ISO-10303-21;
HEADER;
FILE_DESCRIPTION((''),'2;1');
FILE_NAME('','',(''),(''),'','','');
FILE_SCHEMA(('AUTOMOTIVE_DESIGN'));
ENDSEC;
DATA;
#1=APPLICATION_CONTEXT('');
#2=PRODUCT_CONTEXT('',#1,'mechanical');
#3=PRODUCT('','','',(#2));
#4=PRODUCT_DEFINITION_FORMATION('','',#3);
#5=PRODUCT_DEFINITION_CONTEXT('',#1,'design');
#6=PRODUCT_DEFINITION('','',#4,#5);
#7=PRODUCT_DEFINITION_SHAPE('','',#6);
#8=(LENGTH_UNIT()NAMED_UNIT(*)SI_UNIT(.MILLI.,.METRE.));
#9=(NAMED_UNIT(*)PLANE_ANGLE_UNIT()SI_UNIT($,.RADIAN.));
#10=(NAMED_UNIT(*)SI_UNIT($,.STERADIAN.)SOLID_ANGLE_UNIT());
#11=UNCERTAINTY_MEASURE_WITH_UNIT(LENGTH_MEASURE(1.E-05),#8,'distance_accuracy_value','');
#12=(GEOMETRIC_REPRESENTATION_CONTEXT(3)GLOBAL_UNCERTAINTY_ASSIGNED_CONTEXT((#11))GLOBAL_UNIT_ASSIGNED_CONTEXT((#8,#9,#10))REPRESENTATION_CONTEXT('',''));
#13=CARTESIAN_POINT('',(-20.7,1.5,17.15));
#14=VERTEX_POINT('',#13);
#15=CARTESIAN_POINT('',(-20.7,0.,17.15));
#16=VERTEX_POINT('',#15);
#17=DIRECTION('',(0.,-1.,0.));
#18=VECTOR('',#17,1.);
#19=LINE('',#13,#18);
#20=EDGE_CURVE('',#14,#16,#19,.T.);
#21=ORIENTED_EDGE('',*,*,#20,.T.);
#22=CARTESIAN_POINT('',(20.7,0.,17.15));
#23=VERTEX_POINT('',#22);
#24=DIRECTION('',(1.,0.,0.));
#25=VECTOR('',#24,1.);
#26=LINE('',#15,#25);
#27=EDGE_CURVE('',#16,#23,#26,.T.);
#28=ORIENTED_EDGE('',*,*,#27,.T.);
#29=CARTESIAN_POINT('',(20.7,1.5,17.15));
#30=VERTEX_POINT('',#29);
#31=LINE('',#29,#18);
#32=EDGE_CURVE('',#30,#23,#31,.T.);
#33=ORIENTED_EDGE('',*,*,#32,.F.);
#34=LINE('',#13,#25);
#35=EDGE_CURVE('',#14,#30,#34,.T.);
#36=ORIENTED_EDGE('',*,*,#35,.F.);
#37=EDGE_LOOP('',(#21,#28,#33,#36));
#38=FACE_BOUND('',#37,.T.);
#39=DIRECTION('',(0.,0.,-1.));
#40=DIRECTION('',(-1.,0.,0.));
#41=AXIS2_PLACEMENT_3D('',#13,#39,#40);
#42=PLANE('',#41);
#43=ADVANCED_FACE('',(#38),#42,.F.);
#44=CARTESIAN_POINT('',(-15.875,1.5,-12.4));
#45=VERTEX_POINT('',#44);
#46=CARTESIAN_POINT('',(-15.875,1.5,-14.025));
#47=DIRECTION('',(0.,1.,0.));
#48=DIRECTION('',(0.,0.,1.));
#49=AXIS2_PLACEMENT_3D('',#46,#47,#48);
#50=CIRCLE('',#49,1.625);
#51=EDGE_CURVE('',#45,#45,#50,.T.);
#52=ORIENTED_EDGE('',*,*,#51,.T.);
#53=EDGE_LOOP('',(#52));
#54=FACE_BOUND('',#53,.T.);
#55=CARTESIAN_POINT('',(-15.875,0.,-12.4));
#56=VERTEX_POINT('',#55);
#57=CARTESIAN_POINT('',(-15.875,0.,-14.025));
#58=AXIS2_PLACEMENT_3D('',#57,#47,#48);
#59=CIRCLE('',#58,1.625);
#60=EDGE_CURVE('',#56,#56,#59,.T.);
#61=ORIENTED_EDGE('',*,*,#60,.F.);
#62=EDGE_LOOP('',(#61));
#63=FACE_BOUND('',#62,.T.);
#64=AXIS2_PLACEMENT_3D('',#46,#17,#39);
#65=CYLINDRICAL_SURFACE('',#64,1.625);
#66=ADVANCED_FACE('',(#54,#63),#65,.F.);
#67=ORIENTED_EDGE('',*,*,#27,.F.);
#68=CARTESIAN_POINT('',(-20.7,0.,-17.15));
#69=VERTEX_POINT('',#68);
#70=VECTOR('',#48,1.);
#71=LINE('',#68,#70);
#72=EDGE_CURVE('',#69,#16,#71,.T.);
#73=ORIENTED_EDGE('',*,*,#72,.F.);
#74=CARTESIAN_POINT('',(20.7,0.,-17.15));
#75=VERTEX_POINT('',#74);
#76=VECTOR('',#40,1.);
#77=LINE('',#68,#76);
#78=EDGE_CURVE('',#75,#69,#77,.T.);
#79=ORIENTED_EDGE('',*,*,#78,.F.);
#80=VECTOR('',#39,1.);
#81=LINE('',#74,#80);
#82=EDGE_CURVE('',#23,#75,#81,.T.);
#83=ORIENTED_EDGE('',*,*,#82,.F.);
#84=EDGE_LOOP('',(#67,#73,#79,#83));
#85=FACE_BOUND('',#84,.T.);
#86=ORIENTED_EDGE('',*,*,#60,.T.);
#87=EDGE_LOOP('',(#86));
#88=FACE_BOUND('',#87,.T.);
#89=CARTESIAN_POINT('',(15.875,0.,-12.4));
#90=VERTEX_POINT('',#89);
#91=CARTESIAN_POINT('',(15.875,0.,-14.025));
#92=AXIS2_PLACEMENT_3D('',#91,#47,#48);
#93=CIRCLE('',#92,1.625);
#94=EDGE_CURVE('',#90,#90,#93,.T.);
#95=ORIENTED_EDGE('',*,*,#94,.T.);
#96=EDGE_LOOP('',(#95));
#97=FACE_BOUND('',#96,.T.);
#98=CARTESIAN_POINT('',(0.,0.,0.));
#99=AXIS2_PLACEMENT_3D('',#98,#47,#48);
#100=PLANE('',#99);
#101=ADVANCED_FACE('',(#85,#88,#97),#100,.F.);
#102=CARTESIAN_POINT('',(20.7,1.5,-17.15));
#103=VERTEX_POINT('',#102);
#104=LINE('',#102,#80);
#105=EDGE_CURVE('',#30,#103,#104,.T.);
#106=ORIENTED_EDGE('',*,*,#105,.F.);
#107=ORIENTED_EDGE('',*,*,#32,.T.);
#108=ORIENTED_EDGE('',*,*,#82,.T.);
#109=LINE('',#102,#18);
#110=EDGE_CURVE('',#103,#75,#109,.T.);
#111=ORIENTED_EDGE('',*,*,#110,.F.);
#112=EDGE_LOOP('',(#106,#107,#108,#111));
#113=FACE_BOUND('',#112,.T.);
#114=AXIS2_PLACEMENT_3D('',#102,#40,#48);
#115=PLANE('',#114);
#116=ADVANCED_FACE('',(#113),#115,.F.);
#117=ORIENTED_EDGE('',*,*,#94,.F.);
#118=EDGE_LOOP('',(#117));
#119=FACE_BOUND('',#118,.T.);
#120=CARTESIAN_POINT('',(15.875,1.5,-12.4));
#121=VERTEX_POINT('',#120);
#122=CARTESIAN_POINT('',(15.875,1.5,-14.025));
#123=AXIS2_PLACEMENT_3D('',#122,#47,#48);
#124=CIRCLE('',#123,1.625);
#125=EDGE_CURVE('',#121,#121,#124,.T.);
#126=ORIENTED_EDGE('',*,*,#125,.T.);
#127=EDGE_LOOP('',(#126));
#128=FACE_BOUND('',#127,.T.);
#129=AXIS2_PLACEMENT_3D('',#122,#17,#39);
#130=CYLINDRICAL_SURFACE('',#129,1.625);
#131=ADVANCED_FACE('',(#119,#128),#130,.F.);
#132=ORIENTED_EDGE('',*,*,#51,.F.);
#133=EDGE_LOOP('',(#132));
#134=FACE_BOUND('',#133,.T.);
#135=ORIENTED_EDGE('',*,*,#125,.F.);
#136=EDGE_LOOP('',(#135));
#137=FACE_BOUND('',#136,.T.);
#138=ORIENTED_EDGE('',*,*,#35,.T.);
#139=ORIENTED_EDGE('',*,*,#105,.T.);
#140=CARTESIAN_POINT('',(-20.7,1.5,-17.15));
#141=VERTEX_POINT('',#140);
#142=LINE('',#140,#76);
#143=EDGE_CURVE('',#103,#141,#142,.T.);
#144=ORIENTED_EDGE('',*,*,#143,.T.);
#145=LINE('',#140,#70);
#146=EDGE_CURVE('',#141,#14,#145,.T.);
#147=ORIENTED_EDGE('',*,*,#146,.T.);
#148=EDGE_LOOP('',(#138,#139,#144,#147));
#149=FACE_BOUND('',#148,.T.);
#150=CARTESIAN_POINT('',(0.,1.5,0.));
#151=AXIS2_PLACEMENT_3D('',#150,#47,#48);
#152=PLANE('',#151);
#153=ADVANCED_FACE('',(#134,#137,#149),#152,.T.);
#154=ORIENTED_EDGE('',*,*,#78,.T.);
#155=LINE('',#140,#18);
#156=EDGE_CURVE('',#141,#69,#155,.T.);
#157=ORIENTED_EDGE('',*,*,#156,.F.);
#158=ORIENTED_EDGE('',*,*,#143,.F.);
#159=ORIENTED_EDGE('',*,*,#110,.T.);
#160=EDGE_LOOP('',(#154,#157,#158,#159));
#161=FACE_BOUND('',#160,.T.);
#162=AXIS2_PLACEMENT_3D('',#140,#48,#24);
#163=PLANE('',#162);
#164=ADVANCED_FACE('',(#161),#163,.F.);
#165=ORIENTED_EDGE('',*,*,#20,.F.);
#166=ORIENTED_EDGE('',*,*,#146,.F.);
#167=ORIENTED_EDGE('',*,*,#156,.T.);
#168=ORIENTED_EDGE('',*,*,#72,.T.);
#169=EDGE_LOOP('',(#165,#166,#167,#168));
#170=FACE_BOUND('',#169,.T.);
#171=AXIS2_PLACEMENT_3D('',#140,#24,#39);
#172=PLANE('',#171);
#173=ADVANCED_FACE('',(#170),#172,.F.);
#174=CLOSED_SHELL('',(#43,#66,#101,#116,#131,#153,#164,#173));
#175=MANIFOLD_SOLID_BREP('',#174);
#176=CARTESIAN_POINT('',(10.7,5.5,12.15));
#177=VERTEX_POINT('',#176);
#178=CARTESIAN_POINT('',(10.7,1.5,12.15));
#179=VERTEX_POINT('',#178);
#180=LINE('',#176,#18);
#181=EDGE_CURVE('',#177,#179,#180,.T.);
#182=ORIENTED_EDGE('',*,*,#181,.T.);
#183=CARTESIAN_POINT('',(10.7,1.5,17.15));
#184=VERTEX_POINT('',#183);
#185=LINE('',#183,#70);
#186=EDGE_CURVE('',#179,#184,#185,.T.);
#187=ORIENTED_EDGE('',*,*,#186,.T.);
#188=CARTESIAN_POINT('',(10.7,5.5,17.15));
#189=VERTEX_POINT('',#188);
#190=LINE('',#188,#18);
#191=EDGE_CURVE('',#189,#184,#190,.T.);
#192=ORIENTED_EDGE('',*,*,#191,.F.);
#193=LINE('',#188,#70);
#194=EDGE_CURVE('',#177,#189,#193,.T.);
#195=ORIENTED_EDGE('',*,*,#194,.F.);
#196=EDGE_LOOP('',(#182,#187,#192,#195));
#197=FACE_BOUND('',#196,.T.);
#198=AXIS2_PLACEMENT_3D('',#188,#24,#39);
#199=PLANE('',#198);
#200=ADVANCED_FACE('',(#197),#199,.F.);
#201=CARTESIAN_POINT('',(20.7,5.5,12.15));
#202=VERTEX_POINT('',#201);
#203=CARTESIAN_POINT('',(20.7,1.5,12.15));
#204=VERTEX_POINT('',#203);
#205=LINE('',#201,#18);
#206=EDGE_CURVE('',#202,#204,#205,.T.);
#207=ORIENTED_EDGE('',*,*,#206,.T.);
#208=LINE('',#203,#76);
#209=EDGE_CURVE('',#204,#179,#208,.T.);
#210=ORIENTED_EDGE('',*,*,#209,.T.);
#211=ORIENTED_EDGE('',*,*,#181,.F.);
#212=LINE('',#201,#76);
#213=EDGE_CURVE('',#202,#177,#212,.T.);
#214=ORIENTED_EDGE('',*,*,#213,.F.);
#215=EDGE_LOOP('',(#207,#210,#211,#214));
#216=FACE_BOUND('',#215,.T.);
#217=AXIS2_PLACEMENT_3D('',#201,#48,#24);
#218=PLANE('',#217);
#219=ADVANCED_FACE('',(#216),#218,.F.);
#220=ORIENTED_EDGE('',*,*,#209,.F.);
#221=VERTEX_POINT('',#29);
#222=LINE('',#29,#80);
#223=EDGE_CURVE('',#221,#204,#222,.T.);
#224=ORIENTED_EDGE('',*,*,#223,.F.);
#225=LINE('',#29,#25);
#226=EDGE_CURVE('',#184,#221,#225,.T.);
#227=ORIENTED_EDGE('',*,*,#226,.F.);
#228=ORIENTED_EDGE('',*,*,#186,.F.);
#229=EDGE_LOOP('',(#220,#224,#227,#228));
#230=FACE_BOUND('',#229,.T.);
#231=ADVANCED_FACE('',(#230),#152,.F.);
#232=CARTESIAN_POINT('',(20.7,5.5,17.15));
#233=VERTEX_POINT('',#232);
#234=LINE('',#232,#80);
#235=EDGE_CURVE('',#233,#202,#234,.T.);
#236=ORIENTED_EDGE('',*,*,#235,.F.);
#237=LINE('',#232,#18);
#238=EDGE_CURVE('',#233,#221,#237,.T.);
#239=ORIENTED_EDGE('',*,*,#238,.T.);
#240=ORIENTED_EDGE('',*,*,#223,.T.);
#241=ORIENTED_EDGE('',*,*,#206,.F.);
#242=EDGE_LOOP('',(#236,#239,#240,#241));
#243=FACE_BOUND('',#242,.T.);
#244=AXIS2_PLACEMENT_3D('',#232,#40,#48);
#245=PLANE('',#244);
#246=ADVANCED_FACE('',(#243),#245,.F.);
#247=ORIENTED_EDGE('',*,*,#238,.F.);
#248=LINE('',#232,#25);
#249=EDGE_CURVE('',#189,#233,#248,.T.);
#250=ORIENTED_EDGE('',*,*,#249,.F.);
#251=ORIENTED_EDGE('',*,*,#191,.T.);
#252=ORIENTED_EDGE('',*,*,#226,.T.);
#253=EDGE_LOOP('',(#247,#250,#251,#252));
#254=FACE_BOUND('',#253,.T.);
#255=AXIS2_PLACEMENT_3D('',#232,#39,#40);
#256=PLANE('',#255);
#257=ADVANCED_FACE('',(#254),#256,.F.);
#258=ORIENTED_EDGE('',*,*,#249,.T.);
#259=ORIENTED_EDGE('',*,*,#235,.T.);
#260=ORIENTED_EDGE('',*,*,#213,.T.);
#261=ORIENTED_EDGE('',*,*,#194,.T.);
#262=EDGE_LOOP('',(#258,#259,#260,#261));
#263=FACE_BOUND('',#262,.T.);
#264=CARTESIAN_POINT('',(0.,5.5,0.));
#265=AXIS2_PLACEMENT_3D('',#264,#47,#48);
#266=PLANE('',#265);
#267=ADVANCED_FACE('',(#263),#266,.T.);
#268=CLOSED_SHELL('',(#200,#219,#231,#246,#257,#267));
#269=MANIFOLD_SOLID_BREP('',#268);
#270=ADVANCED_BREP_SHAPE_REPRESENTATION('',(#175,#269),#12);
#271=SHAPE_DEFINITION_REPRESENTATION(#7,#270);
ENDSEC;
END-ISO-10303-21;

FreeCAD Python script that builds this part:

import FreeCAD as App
import Part
import Sketcher

V = App.Vector


def add_polygon(sketch, points):
    """Adds a closed chain of lines whose ends are joined by coincident constraints."""
    first, n = sketch.GeometryCount, len(points)
    for a, b in zip(points, points[1:] + points[:1]):
        sketch.addGeometry(Part.LineSegment(App.Vector(*a, 0), App.Vector(*b, 0)), False)
    for i in range(n):
        sketch.addConstraint(Sketcher.Constraint("Coincident", first + i, 2, first + (i + 1) % n, 1))

doc = App.newDocument("Part")
params = doc.addObject("Spreadsheet::Sheet", "Params")
for row, (alias, value) in enumerate([
    ("sketch1_diameter", "3.25 mm"),
    ("sketch1_width", "41.4 mm"),
    ("sketch1_height", "34.3 mm"),
    ("pad1_length", "1.5 mm"),
    ("sketch2_width", "10 mm"),
    ("sketch2_height", "5 mm"),
    ("pad2_length", "4 mm"),
], start=1):
    params.set(f"A{row}", alias)
    params.set(f"B{row}", "=" + value)
    params.setAlias(f"B{row}", alias)

body = doc.addObject("PartDesign::Body", "Body")

# Sketch on XZ plane
sketch1 = body.newObject("Sketcher::SketchObject", "Sketch")
sketch1.AttachmentSupport = (doc.getObject("XZ_Plane"), [""])
sketch1.MapMode = "FlatFace"
add_polygon(sketch1, [(-20.7, -17.1), (-20.7, 17.1), (20.7, 17.1), (20.7, -17.1)])  # lines 0-3
sketch1.addGeometry(Part.Circle(V(-15.9, -14, 0), V(0, 0, 1), 1.6), False)  # 4
sketch1.addGeometry(Part.Circle(V(15.9, -14, 0), V(0, 0, 1), 1.6), False)  # 5
sketch1.addConstraint(Sketcher.Constraint("Vertical", 0))
sketch1.addConstraint(Sketcher.Constraint("Horizontal", 1))
sketch1.addConstraint(Sketcher.Constraint("Vertical", 2))
sketch1.addConstraint(Sketcher.Constraint("Horizontal", 3))
sketch1.addConstraint(Sketcher.Constraint("Equal", 4, 5))
sketch1.addConstraint(Sketcher.Constraint("Symmetric", 0, 2, 2, 2, -1, 1))
sketch1.addConstraint(Sketcher.Constraint("Symmetric", 4, 3, 5, 3, -2))
sketch1.addConstraint(Sketcher.Constraint("Diameter", 4, 3.25))
sketch1.addConstraint(Sketcher.Constraint("DistanceX", 1, 1, 1, 2, 41.4))
sketch1.addConstraint(Sketcher.Constraint("DistanceY", 0, 1, 0, 2, 34.3))
sketch1.addConstraint(Sketcher.Constraint("DistanceX", 4, 3, 5, 3, 31.75))
sketch1.addConstraint(Sketcher.Constraint("DistanceY", 4, 3, -1, 1, 14.025))
sketch1.setExpression("Constraints[11]", "Params.sketch1_diameter")
sketch1.setExpression("Constraints[12]", "Params.sketch1_width")
sketch1.setExpression("Constraints[13]", "Params.sketch1_height")
pad1 = body.newObject("PartDesign::Pad", "Pad")
pad1.Profile = sketch1
pad1.setExpression("Length", "Params.pad1_length")
pad1.Reversed = True
body2 = doc.addObject("PartDesign::Body", "Body001")

# Sketch on XZ plane
sketch2 = body2.newObject("Sketcher::SketchObject", "Sketch001")
sketch2.AttachmentSupport = (doc.getObject("XZ_Plane001"), [""])
sketch2.MapMode = "FlatFace"
sketch2.AttachmentOffset = App.Placement(V(0, 0, -1.5), App.Rotation())
add_polygon(sketch2, [(10.7, 12.2), (10.7, 17.1), (20.7, 17.1), (20.7, 12.2)])  # lines 0-3
sketch2.addConstraint(Sketcher.Constraint("Vertical", 0))
sketch2.addConstraint(Sketcher.Constraint("Horizontal", 1))
sketch2.addConstraint(Sketcher.Constraint("Vertical", 2))
sketch2.addConstraint(Sketcher.Constraint("Horizontal", 3))
sketch2.addConstraint(Sketcher.Constraint("DistanceX", 1, 1, 1, 2, 10.0))
sketch2.addConstraint(Sketcher.Constraint("DistanceY", 0, 1, 0, 2, 5.0))
sketch2.addConstraint(Sketcher.Constraint("DistanceX", -1, 1, 0, 2, 10.7))
sketch2.addConstraint(Sketcher.Constraint("DistanceY", -1, 1, 0, 2, 17.15))
sketch2.setExpression("Constraints[8]", "Params.sketch2_width")
sketch2.setExpression("Constraints[9]", "Params.sketch2_height")
pad2 = body2.newObject("PartDesign::Pad", "Pad001")
pad2.Profile = sketch2
pad2.setExpression("Length", "Params.pad2_length")
pad2.Reversed = True

doc.recompute()
